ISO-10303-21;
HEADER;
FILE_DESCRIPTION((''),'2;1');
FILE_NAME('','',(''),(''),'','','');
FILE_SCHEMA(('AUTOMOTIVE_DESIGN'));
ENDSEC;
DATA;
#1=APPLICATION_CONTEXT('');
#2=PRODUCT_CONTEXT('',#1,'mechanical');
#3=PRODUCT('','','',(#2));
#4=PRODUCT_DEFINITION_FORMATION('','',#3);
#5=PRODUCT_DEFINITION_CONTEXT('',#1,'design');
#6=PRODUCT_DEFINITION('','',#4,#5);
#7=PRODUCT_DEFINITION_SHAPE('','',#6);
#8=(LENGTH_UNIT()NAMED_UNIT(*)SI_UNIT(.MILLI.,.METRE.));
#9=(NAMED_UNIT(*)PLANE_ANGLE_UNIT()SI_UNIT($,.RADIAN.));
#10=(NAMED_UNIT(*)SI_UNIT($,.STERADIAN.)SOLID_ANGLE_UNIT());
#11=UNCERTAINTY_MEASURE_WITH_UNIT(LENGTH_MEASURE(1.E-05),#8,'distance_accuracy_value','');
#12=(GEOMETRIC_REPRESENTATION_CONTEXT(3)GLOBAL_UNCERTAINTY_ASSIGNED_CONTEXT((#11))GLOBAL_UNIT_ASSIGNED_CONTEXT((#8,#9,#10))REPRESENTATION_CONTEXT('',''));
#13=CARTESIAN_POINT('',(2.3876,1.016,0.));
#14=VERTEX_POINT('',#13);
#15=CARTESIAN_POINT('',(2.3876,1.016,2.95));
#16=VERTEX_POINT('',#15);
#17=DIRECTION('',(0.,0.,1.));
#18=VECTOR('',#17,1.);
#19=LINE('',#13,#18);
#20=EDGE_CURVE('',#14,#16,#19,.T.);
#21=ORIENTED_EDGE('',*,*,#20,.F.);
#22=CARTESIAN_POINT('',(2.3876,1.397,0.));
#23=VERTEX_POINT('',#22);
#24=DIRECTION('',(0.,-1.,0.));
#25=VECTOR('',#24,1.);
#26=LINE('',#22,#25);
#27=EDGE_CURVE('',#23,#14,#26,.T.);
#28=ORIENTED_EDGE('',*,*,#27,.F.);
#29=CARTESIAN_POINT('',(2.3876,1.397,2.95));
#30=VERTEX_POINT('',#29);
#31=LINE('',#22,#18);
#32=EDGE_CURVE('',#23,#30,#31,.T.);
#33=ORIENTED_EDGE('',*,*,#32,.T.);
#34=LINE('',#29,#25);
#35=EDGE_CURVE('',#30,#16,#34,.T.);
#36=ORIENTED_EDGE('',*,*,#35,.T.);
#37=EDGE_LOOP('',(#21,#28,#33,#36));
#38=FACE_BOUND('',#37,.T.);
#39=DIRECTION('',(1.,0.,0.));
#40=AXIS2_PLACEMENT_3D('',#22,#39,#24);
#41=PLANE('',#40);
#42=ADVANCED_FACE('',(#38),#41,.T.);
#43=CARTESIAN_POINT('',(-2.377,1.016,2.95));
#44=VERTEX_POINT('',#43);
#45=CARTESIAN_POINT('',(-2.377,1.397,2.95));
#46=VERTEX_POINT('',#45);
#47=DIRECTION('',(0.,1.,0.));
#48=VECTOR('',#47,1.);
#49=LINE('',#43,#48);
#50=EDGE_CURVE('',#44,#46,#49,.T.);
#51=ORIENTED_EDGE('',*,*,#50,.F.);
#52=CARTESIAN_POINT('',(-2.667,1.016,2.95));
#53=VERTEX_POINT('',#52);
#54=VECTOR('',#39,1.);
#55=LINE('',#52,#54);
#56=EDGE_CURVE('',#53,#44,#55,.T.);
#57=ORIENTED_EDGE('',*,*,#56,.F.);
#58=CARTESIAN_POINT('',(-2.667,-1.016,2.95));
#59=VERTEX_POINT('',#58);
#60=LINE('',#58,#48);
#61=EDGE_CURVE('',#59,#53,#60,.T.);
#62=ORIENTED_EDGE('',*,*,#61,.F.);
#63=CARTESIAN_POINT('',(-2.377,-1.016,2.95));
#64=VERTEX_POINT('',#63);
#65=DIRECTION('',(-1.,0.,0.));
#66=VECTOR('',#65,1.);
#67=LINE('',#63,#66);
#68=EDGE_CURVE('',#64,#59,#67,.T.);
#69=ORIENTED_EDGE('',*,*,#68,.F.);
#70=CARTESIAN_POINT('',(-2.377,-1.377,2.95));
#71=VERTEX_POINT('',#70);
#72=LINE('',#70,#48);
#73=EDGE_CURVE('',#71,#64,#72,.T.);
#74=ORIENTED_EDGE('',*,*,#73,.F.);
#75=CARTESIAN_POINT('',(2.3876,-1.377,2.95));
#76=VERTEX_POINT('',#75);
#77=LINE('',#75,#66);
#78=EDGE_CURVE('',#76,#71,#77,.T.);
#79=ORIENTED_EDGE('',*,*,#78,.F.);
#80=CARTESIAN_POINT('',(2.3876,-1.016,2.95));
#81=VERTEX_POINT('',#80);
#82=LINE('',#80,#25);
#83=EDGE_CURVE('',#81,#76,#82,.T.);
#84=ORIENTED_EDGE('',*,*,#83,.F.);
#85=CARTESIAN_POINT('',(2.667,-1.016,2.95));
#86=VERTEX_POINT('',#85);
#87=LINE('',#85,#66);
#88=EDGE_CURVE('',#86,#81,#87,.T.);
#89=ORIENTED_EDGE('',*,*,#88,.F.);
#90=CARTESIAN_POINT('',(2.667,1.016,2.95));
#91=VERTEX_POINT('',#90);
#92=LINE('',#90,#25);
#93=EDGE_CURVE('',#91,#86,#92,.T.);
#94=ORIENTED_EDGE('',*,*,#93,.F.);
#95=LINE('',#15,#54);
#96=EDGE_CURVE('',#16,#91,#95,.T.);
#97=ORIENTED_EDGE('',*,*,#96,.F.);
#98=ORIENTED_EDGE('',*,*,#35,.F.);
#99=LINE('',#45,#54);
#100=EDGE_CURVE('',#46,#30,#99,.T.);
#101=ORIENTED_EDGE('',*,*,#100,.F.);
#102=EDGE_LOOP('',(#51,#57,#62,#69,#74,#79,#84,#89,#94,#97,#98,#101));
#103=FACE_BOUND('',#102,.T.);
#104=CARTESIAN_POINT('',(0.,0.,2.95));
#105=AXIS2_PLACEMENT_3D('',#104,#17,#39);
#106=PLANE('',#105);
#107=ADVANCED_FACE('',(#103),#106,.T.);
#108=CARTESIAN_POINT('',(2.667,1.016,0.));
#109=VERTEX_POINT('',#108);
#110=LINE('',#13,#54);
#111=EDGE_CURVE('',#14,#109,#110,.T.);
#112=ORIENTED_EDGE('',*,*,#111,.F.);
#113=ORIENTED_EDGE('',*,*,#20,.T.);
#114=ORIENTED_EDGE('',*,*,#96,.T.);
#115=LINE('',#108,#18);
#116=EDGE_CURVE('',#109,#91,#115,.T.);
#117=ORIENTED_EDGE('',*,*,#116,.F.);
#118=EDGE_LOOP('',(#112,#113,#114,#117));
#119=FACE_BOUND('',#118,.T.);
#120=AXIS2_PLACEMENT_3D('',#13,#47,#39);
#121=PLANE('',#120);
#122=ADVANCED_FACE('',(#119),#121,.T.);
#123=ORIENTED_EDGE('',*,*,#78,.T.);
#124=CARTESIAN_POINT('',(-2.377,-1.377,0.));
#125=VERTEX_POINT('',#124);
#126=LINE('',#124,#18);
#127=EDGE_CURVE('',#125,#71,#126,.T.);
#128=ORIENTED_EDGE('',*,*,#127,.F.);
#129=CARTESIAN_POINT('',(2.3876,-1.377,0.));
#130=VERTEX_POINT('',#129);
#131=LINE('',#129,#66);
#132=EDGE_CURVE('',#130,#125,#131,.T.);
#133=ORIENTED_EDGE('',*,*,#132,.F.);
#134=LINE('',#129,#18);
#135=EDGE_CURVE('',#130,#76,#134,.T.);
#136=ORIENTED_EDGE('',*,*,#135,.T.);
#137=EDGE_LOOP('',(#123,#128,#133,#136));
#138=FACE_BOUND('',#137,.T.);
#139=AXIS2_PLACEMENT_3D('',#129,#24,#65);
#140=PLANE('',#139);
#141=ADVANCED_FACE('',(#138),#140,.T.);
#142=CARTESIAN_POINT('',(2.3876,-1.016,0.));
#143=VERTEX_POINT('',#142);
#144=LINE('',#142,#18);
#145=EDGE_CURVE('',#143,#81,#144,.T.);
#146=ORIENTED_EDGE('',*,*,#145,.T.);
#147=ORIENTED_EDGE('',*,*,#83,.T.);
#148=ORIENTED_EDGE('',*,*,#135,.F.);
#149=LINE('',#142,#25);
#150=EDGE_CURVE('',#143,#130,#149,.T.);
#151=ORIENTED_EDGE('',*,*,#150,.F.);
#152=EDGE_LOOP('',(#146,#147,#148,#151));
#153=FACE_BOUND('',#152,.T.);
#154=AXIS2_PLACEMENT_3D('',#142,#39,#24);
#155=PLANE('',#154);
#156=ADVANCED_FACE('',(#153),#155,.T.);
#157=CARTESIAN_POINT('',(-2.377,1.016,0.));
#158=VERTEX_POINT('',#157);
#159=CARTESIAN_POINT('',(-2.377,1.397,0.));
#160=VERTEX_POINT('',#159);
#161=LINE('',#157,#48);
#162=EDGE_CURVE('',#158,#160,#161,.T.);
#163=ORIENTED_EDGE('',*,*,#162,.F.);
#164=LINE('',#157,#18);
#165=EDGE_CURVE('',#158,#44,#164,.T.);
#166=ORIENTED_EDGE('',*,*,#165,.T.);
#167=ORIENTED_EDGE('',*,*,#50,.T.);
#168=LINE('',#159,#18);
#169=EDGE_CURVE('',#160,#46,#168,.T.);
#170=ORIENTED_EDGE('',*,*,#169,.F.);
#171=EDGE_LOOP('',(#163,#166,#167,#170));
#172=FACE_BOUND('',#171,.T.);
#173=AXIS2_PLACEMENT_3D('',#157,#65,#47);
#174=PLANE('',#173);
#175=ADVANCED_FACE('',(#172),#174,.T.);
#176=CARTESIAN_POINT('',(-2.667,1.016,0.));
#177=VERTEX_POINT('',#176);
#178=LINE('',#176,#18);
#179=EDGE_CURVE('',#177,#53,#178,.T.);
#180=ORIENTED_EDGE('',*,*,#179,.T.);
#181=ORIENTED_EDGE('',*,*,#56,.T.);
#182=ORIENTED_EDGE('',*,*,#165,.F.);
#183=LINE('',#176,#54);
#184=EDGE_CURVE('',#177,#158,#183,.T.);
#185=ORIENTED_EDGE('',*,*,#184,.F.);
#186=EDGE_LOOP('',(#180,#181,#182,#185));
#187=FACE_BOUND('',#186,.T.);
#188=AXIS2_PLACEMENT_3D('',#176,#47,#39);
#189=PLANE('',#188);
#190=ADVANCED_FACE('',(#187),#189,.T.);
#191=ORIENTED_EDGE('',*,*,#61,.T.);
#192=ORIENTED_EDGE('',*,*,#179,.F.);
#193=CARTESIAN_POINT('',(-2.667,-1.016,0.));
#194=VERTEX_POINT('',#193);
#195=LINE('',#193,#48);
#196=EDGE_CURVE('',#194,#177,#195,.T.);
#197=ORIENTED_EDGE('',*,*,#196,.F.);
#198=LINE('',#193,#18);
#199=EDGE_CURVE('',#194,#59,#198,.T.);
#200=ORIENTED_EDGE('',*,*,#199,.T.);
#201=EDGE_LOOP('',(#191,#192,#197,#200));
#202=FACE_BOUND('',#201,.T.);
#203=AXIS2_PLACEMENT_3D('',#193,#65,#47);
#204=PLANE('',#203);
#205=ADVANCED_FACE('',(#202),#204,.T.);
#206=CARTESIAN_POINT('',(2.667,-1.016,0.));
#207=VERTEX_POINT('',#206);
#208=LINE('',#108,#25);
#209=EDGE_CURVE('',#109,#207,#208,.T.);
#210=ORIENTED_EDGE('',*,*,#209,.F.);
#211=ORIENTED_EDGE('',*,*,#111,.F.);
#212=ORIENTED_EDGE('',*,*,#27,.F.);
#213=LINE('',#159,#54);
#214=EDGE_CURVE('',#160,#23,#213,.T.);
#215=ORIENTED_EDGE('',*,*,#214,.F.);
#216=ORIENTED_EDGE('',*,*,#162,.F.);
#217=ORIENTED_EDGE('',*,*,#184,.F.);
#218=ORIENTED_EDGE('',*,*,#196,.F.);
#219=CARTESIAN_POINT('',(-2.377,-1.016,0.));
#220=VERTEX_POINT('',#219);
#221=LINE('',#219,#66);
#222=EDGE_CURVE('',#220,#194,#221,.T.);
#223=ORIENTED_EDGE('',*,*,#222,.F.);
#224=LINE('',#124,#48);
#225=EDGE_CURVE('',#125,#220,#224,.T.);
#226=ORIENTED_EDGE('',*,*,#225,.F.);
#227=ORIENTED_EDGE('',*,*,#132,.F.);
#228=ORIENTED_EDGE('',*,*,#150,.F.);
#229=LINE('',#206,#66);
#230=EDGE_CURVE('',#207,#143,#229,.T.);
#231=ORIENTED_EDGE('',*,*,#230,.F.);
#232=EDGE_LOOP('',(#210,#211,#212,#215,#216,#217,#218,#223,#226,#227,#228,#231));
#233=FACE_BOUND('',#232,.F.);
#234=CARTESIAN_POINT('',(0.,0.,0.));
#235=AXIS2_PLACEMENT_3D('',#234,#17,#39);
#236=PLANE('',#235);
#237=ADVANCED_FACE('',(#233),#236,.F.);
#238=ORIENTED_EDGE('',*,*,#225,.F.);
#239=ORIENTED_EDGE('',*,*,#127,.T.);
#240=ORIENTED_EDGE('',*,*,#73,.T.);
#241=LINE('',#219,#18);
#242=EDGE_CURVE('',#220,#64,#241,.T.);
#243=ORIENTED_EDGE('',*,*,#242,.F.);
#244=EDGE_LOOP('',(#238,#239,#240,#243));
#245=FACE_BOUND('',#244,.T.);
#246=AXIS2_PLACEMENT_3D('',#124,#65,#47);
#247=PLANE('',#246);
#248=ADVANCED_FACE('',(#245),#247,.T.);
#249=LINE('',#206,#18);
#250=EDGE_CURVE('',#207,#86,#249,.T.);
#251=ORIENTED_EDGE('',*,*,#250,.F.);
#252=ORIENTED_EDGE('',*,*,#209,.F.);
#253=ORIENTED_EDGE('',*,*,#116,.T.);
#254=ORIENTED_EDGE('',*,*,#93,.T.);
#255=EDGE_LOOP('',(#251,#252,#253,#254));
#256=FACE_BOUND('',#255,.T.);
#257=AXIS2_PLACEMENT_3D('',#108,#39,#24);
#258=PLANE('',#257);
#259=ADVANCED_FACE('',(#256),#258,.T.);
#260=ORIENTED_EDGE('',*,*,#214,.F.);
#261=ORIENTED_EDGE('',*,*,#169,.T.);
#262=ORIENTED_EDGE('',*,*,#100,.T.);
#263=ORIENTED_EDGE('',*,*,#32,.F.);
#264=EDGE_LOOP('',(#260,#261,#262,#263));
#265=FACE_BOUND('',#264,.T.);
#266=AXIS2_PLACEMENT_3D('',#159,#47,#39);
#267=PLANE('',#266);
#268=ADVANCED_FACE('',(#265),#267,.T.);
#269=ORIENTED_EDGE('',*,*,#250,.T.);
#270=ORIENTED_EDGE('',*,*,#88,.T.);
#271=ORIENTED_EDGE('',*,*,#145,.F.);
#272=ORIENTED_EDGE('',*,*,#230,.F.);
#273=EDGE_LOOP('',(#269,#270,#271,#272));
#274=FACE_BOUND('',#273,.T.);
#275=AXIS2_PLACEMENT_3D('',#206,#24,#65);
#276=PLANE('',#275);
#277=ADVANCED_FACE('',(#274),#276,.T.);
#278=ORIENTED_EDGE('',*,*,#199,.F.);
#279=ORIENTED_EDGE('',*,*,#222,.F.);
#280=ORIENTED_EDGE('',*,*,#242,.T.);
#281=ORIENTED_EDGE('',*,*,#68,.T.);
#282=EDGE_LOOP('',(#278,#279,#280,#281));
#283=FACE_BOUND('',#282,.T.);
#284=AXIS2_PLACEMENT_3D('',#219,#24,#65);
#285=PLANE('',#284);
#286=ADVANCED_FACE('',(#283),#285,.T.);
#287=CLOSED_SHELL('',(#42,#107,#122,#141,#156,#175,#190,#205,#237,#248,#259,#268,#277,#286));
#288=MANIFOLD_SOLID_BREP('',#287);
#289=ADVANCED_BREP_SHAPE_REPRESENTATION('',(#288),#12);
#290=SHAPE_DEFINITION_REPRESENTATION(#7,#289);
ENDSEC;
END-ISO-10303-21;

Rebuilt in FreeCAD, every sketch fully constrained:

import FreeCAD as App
import Part
import Sketcher
Q = App.Units.Quantity


def add_polygon(sketch, points):
    """Adds a closed chain of lines whose ends are joined by coincident constraints."""
    first, n = sketch.GeometryCount, len(points)
    for a, b in zip(points, points[1:] + points[:1]):
        sketch.addGeometry(Part.LineSegment(App.Vector(*a, 0), App.Vector(*b, 0)), False)
    for i in range(n):
        sketch.addConstraint(Sketcher.Constraint("Coincident", first + i, 2, first + (i + 1) % n, 1))

doc = App.newDocument("Part")
params = doc.addObject("Spreadsheet::Sheet", "Params")
for row, (alias, value) in enumerate([
    ("sketch1_height", "0.08 in"),
    ("sketch1_width", "0.011 in"),
    ("sketch1_height2", "0.015 in"),
    ("pad1_length", "2.95 mm"),
], start=1):
    params.set(f"A{row}", alias)
    params.set(f"B{row}", "=" + value)
    params.setAlias(f"B{row}", alias)

body = doc.addObject("PartDesign::Body", "Body")

sketch1 = body.newObject("Sketcher::SketchObject", "Sketch")
sketch1.AttachmentSupport = (doc.getObject("XY_Plane"), [""])
sketch1.MapMode = "FlatFace"
add_polygon(sketch1, [(-2.377, 1.397), (-2.377, 1.016), (-2.667, 1.016), (-2.667, -1.016), (-2.377, -1.016), (-2.377, -1.377), (2.3876, -1.377), (2.3876, -1.016), (2.667, -1.016), (2.667, 1.016), (2.3876, 1.016), (2.3876, 1.397)])
sketch1.addConstraint([
    Sketcher.Constraint("Vertical", 0),
    Sketcher.Constraint("Horizontal", 1),
    Sketcher.Constraint("Vertical", 2),
    Sketcher.Constraint("Horizontal", 3),
    Sketcher.Constraint("Vertical", 4),
    Sketcher.Constraint("Horizontal", 5),
    Sketcher.Constraint("Vertical", 6),
    Sketcher.Constraint("Horizontal", 7),
    Sketcher.Constraint("Vertical", 8),
    Sketcher.Constraint("Horizontal", 9),
    Sketcher.Constraint("Vertical", 10),
    Sketcher.Constraint("Horizontal", 11),
    Sketcher.Constraint("Symmetric", 1, 2, 7, 2, -1, 1),
    Sketcher.Constraint("Symmetric", 0, 2, 3, 2, -1),
    Sketcher.Constraint("Symmetric", 6, 2, 9, 2, -1),
    Sketcher.Constraint("DistanceY", 2, 2, 2, 1, Q("0.08 in")),
    Sketcher.Constraint("DistanceX", 7, 1, 7, 2, Q("0.011 in")),
    Sketcher.Constraint("DistanceY", 0, 2, 0, 1, Q("0.015 in")),
    Sketcher.Constraint("DistanceX", 2, 2, 7, 2, Q("0.21 in")),
    Sketcher.Constraint("DistanceX", 1, 2, 1, 1, Q("0.29 mm")),
    Sketcher.Constraint("DistanceY", 4, 2, 4, 1, Q("0.361 mm")),
])
sketch1.setExpression("Constraints[27]", "Params.sketch1_height")
sketch1.setExpression("Constraints[28]", "Params.sketch1_width")
sketch1.setExpression("Constraints[29]", "Params.sketch1_height2")
pad1 = body.newObject("PartDesign::Pad", "Pad")
pad1.Profile = sketch1
pad1.setExpression("Length", "Params.pad1_length")

doc.recompute()
